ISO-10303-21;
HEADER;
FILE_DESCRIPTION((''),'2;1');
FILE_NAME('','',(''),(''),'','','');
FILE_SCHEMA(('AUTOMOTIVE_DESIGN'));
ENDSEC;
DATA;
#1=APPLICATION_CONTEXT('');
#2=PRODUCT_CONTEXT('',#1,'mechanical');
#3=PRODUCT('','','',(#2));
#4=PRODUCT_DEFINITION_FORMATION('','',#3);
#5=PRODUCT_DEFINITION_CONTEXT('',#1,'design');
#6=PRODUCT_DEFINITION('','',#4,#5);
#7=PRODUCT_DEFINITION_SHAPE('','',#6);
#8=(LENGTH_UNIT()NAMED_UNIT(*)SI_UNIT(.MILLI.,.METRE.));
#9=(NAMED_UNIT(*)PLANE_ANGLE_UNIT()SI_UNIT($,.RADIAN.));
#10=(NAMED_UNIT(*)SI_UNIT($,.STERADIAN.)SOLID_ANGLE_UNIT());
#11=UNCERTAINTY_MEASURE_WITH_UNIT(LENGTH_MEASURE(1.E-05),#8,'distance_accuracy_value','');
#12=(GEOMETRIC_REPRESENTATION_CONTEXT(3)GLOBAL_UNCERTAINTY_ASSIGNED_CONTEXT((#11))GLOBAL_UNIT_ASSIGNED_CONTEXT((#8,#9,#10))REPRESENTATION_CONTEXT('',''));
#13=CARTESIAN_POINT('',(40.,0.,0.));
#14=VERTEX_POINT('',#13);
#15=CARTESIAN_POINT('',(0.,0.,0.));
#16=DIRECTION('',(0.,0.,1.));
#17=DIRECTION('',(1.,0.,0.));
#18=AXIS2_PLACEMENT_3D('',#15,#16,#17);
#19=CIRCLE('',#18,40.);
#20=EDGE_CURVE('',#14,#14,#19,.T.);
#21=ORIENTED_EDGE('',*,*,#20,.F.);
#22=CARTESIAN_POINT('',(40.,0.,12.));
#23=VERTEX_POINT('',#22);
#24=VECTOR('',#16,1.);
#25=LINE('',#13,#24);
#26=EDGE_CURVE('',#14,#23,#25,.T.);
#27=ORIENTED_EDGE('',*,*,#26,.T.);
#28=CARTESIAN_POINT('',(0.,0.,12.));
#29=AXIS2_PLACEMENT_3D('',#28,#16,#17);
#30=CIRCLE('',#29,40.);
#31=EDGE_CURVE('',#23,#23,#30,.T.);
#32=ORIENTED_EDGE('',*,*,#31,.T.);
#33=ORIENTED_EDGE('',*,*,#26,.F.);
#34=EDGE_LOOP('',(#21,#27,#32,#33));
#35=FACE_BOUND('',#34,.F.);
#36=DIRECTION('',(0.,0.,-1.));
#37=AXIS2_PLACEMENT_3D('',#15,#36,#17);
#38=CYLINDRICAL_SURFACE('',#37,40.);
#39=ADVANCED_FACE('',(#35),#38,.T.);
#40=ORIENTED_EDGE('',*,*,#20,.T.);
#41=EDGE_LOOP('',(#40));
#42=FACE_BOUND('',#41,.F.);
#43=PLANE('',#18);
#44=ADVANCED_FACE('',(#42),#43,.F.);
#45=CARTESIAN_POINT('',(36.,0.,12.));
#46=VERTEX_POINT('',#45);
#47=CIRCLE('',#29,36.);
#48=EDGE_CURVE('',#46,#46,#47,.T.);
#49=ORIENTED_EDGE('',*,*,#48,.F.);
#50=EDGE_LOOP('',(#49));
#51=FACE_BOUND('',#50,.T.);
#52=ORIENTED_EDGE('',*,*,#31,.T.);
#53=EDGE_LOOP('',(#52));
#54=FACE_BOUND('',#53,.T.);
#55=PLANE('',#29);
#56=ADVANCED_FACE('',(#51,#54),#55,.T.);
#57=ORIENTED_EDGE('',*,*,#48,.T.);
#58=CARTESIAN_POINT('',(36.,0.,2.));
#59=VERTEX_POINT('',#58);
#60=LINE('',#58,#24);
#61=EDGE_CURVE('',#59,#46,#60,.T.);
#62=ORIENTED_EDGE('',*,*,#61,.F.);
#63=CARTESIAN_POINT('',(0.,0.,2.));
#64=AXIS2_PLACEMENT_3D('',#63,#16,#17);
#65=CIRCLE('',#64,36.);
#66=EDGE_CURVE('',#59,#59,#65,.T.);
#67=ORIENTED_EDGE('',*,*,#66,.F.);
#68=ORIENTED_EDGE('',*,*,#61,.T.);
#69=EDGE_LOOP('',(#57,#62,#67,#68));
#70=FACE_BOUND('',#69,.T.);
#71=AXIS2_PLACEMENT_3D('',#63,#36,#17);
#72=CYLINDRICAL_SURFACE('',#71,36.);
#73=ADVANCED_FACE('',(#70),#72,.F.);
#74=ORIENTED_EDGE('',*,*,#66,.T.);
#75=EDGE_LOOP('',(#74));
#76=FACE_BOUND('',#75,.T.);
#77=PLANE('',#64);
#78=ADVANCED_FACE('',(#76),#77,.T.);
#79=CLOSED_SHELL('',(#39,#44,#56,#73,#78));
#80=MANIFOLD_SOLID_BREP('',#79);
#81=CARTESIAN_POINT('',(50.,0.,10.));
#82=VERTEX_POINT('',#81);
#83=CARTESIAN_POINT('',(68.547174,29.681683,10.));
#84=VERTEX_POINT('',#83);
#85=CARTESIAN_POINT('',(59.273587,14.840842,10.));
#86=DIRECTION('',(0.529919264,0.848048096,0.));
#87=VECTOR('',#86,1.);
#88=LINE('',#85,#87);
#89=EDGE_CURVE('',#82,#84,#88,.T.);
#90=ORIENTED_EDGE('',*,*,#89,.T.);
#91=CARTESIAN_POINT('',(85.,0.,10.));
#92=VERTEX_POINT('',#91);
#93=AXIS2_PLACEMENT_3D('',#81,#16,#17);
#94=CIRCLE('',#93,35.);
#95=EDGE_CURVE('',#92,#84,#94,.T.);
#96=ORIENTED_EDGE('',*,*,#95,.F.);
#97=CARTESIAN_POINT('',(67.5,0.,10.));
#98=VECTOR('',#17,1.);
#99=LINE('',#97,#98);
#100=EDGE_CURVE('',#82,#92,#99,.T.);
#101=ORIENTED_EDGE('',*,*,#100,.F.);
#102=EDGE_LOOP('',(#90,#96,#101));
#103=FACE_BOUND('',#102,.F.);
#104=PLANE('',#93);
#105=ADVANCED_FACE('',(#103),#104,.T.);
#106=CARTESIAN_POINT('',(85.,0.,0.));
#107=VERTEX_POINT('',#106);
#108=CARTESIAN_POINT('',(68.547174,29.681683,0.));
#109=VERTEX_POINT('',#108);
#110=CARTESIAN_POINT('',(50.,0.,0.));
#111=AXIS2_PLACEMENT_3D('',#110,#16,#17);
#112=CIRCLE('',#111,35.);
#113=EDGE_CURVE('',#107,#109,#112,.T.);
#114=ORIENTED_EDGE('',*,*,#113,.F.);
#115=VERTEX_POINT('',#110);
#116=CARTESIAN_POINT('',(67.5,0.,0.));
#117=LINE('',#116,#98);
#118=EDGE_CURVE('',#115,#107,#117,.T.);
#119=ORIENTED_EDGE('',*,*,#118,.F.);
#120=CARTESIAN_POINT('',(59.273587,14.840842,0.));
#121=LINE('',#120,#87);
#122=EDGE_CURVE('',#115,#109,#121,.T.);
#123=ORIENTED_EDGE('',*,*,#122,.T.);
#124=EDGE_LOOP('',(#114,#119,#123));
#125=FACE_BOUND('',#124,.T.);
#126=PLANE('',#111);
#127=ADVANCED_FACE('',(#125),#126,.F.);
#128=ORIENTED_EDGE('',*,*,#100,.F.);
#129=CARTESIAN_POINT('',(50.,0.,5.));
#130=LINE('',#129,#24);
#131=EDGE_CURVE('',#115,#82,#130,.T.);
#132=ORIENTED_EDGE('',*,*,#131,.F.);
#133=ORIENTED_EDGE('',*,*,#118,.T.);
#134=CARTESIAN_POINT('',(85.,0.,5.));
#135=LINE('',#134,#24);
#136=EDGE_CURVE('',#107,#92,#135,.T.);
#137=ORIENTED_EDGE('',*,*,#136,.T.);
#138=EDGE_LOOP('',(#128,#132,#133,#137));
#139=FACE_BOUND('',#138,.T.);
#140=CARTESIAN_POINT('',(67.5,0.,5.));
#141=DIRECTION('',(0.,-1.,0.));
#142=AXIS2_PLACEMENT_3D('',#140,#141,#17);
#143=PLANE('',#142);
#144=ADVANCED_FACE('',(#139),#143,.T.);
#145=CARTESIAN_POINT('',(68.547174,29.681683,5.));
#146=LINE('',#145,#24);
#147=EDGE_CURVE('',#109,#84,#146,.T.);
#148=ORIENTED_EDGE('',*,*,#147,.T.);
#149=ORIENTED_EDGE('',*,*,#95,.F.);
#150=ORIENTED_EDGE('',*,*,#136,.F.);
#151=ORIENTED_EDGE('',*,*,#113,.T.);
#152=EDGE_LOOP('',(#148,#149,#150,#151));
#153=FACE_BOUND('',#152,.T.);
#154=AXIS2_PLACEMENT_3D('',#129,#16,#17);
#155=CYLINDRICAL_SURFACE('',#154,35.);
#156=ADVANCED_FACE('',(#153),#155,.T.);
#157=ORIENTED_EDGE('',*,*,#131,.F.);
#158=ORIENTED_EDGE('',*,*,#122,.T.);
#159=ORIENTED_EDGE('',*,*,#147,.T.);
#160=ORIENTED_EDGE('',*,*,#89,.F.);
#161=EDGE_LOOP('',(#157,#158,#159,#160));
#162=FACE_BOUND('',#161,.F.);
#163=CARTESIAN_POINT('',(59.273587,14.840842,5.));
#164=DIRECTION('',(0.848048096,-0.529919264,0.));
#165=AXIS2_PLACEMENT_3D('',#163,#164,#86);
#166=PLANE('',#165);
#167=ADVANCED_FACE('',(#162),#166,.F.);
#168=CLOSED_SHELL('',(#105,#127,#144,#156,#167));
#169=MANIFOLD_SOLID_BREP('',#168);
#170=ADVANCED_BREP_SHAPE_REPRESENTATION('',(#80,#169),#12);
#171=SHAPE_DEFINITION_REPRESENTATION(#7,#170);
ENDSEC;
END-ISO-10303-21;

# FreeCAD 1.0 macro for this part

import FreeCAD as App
import Part
import Sketcher

V = App.Vector
Q = App.Units.Quantity


def add_polygon(sketch, points):
    """Adds a closed chain of lines whose ends are joined by coincident constraints."""
    first, n = sketch.GeometryCount, len(points)
    for a, b in zip(points, points[1:] + points[:1]):
        sketch.addGeometry(Part.LineSegment(App.Vector(*a, 0), App.Vector(*b, 0)), False)
    for i in range(n):
        sketch.addConstraint(Sketcher.Constraint("Coincident", first + i, 2, first + (i + 1) % n, 1))

doc = App.newDocument("Part")
params = doc.addObject("Spreadsheet::Sheet", "Params")
for row, (alias, value) in enumerate([
    ("sketch1_diameter", "72 mm"),
    ("pad1_length", "10 mm"),
    ("sketch2_diameter", "80 mm"),
    ("pad2_length", "12 mm"),
    ("sketch3_width", "35 mm"),
    ("sketch3_height", "10 mm"),
    ("revolution_angle", "58 deg"),
], start=1):
    params.set(f"A{row}", alias)
    params.set(f"B{row}", "=" + value)
    params.setAlias(f"B{row}", alias)

body = doc.addObject("PartDesign::Body", "Body")

# Sketch on XY plane
sketch1 = body.newObject("Sketcher::SketchObject", "Sketch")
sketch1.AttachmentSupport = (doc.getObject("XY_Plane"), [""])
sketch1.MapMode = "FlatFace"
sketch1.AttachmentOffset = App.Placement(V(0, 0, 2), App.Rotation())
sketch1.addGeometry(Part.Circle(V(0, 0, 0), V(0, 0, 1), 36), False)
sketch1.addConstraint([
    Sketcher.Constraint("Coincident", 0, 3, -1, 1),
    Sketcher.Constraint("Diameter", 0, Q("72 mm")),
])
sketch1.setExpression("Constraints[1]", "Params.sketch1_diameter")
pad1 = body.newObject("PartDesign::Pad", "Pad")
pad1.Profile = sketch1
pad1.setExpression("Length", "Params.pad1_length")
body2 = doc.addObject("PartDesign::Body", "Body001")

# Sketch on XY plane
sketch2 = body2.newObject("Sketcher::SketchObject", "Sketch001")
sketch2.AttachmentSupport = (doc.getObject("XY_Plane001"), [""])
sketch2.MapMode = "FlatFace"
sketch2.addGeometry(Part.Circle(V(0, 0, 0), V(0, 0, 1), 40), False)
sketch2.addConstraint([
    Sketcher.Constraint("Coincident", 0, 3, -1, 1),
    Sketcher.Constraint("Diameter", 0, Q("80 mm")),
])
sketch2.setExpression("Constraints[1]", "Params.sketch2_diameter")
pad2 = body2.newObject("PartDesign::Pad", "Pad001")
pad2.Profile = sketch2
pad2.setExpression("Length", "Params.pad2_length")
doc.recompute()

boolean = body2.newObject("PartDesign::Boolean", "Boolean")
boolean.Type = "Cut"
boolean.addObjects([body])
body3 = doc.addObject("PartDesign::Body", "Body002")

# Sketch on XZ plane
sketch3 = body3.newObject("Sketcher::SketchObject", "Sketch002")
sketch3.AttachmentSupport = (doc.getObject("XZ_Plane002"), [""])
sketch3.MapMode = "FlatFace"
add_polygon(sketch3, [(50, 10), (50, 0), (85, 0), (85, 10)])  # lines 0-3
sketch3.addGeometry(Part.LineSegment(V(50, 0, 0), V(50, 10, 0)), True)  # axis
sketch3.addConstraint([
    Sketcher.Constraint("Vertical", 0),
    Sketcher.Constraint("Horizontal", 1),
    Sketcher.Constraint("Vertical", 2),
    Sketcher.Constraint("Horizontal", 3),
    Sketcher.Constraint("Vertical", 4),
    Sketcher.Constraint("Coincident", 4, 1, 0, 2),
    Sketcher.Constraint("PointOnObject", 0, 2, -1),
    Sketcher.Constraint("Horizontal", 2, 2, 4, 2),
    Sketcher.Constraint("DistanceX", 1, 1, 1, 2, Q("35 mm")),
    Sketcher.Constraint("DistanceY", 0, 2, 0, 1, Q("10 mm")),
    Sketcher.Constraint("DistanceX", -1, 1, 0, 2, Q("50 mm")),
])
sketch3.setExpression("Constraints[12]", "Params.sketch3_width")
sketch3.setExpression("Constraints[13]", "Params.sketch3_height")
revolution = body3.newObject("PartDesign::Revolution", "Revolution")
revolution.Profile = sketch3
revolution.ReferenceAxis = (sketch3, ["Axis0"])
revolution.setExpression("Angle", "Params.revolution_angle")

doc.recompute()
